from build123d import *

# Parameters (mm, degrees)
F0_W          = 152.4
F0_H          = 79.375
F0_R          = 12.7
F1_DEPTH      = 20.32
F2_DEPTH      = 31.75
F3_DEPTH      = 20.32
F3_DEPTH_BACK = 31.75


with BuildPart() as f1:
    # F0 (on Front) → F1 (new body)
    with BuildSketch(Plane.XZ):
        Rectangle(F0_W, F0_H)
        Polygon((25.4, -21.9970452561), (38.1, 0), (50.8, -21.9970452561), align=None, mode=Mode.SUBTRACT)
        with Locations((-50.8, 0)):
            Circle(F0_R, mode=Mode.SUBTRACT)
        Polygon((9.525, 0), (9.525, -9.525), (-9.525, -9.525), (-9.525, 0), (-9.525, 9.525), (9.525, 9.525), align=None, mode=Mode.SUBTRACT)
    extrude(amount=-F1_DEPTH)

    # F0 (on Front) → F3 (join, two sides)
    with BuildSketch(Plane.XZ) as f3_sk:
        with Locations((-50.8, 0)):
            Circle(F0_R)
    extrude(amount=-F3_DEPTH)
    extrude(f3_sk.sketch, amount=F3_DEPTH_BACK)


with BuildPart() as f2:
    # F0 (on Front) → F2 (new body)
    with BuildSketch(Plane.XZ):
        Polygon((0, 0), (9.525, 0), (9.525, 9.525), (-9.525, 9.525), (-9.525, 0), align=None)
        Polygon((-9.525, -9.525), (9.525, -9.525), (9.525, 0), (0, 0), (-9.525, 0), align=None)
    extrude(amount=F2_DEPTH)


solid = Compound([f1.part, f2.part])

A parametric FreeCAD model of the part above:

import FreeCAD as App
import Part
import Sketcher

V = App.Vector
Q = App.Units.Quantity

doc = App.newDocument("Part")
body = doc.addObject("PartDesign::Body", "Body")

# Sketch on XZ plane
sketch1 = body.newObject("Sketcher::SketchObject", "Sketch")
sketch1.AttachmentSupport = (doc.getObject("XZ_Plane"), [""])
sketch1.MapMode = "FlatFace"
sketch1.addGeometry(Part.LineSegment(V(-76, 40, 0), V(-76, -40, 0)), False)
sketch1.addGeometry(Part.LineSegment(V(-76, -40, 0), V(76, -40, 0)), False)
sketch1.addGeometry(Part.LineSegment(V(76, -40, 0), V(76, 40, 0)), False)
sketch1.addGeometry(Part.LineSegment(V(76, 40, 0), V(-76, 40, 0)), False)
sketch1.addGeometry(Part.LineSegment(V(51, -22, 0), V(25, -22, 0)), False)
sketch1.addGeometry(Part.LineSegment(V(25, -22, 0), V(38, 0, 0)), False)
sketch1.addGeometry(Part.LineSegment(V(38, 0, 0), V(51, -22, 0)), False)
sketch1.addGeometry(Part.Circle(V(-51, 0, 0), V(0, 0, 1), 13), False)
sketch1.addGeometry(Part.LineSegment(V(10, 10, 0), V(10, -10, 0)), False)
sketch1.addGeometry(Part.LineSegment(V(10, -10, 0), V(-10, -10, 0)), False)
sketch1.addGeometry(Part.LineSegment(V(-10, -10, 0), V(-10, 10, 0)), False)
sketch1.addGeometry(Part.LineSegment(V(-10, 10, 0), V(10, 10, 0)), False)
sketch1.addConstraint(Sketcher.Constraint("Coincident", 0, 2, 1, 1))
sketch1.addConstraint(Sketcher.Constraint("Coincident", 1, 2, 2, 1))
sketch1.addConstraint(Sketcher.Constraint("Coincident", 2, 2, 3, 1))
sketch1.addConstraint(Sketcher.Constraint("Coincident", 3, 2, 0, 1))
sketch1.addConstraint(Sketcher.Constraint("Coincident", 4, 2, 5, 1))
sketch1.addConstraint(Sketcher.Constraint("Coincident", 5, 2, 6, 1))
sketch1.addConstraint(Sketcher.Constraint("Coincident", 6, 2, 4, 1))
sketch1.addConstraint(Sketcher.Constraint("Coincident", 8, 2, 9, 1))
sketch1.addConstraint(Sketcher.Constraint("Coincident", 9, 2, 10, 1))
sketch1.addConstraint(Sketcher.Constraint("Coincident", 10, 2, 11, 1))
sketch1.addConstraint(Sketcher.Constraint("Coincident", 11, 2, 8, 1))
sketch1.addConstraint(Sketcher.Constraint("Vertical", 0))
sketch1.addConstraint(Sketcher.Constraint("Horizontal", 1))
sketch1.addConstraint(Sketcher.Constraint("Vertical", 2))
sketch1.addConstraint(Sketcher.Constraint("Horizontal", 3))
sketch1.addConstraint(Sketcher.Constraint("Horizontal", 4))
sketch1.addConstraint(Sketcher.Constraint("Vertical", 8))
sketch1.addConstraint(Sketcher.Constraint("Horizontal", 9))
sketch1.addConstraint(Sketcher.Constraint("Vertical", 10))
sketch1.addConstraint(Sketcher.Constraint("Horizontal", 11))
sketch1.addConstraint(Sketcher.Constraint("Symmetric", 0, 2, 2, 2, -1, 1))
sketch1.addConstraint(Sketcher.Constraint("Symmetric", 8, 2, 10, 2, -1, 1))
sketch1.addConstraint(Sketcher.Constraint("PointOnObject", 7, 3, -1))
sketch1.addConstraint(Sketcher.Constraint("PointOnObject", 5, 2, -1))
sketch1.addConstraint(Sketcher.Constraint("Equal", 11, 8))
sketch1.addConstraint(Sketcher.Constraint("Equal", 5, 6))
sketch1.addConstraint(Sketcher.Constraint("Diameter", 7, Q("1 in")))
sketch1.addConstraint(Sketcher.Constraint("DistanceX", 1, 1, 1, 2, Q("6 in")))
sketch1.addConstraint(Sketcher.Constraint("DistanceX", 4, 2, 4, 1, Q("1 in")))
sketch1.addConstraint(Sketcher.Constraint("Distance", 5, Q("1 in")))
sketch1.addConstraint(Sketcher.Constraint("DistanceX", 7, 3, -1, 1, Q("2 in")))
sketch1.addConstraint(Sketcher.Constraint("DistanceX", -1, 1, 4, 2, Q("1 in")))
sketch1.addConstraint(Sketcher.Constraint("DistanceX", 9, 2, 9, 1, Q("0.75 in")))
sketch1.addConstraint(Sketcher.Constraint("DistanceY", 0, 2, 0, 1, Q("3.125 in")))
pad1 = body.newObject("PartDesign::Pad", "Pad")
pad1.Profile = sketch1
pad1.Length = Q("0.8 in")
pad1.Reversed = True

# Sketch on XZ plane
sketch2 = body.newObject("Sketcher::SketchObject", "Sketch001")
sketch2.AttachmentSupport = (doc.getObject("XZ_Plane"), [""])
sketch2.MapMode = "FlatFace"
sketch2.addGeometry(Part.Circle(V(-51, 0, 0), V(0, 0, 1), 13), False)
sketch2.addConstraint(Sketcher.Constraint("PointOnObject", 0, 3, -1))
sketch2.addConstraint(Sketcher.Constraint("Diameter", 0, Q("1 in")))
sketch2.addConstraint(Sketcher.Constraint("DistanceX", 0, 3, -1, 1, Q("2 in")))
pad2 = body.newObject("PartDesign::Pad", "Pad001")
pad2.Profile = sketch2
pad2.Type = "TwoLengths"
pad2.Length = Q("0.8 in")
pad2.Length2 = Q("1.25 in")
pad2.Reversed = True
body2 = doc.addObject("PartDesign::Body", "Body001")

# Sketch on XZ plane
sketch3 = body2.newObject("Sketcher::SketchObject", "Sketch002")
sketch3.AttachmentSupport = (doc.getObject("XZ_Plane001"), [""])
sketch3.MapMode = "FlatFace"
sketch3.addGeometry(Part.LineSegment(V(10, 10, 0), V(-10, 10, 0)), False)
sketch3.addGeometry(Part.LineSegment(V(-10, 10, 0), V(-10, -10, 0)), False)
sketch3.addGeometry(Part.LineSegment(V(-10, -10, 0), V(10, -10, 0)), False)
sketch3.addGeometry(Part.LineSegment(V(10, -10, 0), V(10, 10, 0)), False)
sketch3.addConstraint(Sketcher.Constraint("Coincident", 0, 2, 1, 1))
sketch3.addConstraint(Sketcher.Constraint("Coincident", 1, 2, 2, 1))
sketch3.addConstraint(Sketcher.Constraint("Coincident", 2, 2, 3, 1))
sketch3.addConstraint(Sketcher.Constraint("Coincident", 3, 2, 0, 1))
sketch3.addConstraint(Sketcher.Constraint("Horizontal", 0))
sketch3.addConstraint(Sketcher.Constraint("Vertical", 1))
sketch3.addConstraint(Sketcher.Constraint("Horizontal", 2))
sketch3.addConstraint(Sketcher.Constraint("Vertical", 3))
sketch3.addConstraint(Sketcher.Constraint("Symmetric", 0, 2, 2, 2, -1, 1))
sketch3.addConstraint(Sketcher.Constraint("Equal", 2, 1))
sketch3.addConstraint(Sketcher.Constraint("DistanceX", 0, 2, 0, 1, Q("0.75 in")))
pad3 = body2.newObject("PartDesign::Pad", "Pad002")
pad3.Profile = sketch3
pad3.Length = Q("1.25 in")

doc.recompute()
